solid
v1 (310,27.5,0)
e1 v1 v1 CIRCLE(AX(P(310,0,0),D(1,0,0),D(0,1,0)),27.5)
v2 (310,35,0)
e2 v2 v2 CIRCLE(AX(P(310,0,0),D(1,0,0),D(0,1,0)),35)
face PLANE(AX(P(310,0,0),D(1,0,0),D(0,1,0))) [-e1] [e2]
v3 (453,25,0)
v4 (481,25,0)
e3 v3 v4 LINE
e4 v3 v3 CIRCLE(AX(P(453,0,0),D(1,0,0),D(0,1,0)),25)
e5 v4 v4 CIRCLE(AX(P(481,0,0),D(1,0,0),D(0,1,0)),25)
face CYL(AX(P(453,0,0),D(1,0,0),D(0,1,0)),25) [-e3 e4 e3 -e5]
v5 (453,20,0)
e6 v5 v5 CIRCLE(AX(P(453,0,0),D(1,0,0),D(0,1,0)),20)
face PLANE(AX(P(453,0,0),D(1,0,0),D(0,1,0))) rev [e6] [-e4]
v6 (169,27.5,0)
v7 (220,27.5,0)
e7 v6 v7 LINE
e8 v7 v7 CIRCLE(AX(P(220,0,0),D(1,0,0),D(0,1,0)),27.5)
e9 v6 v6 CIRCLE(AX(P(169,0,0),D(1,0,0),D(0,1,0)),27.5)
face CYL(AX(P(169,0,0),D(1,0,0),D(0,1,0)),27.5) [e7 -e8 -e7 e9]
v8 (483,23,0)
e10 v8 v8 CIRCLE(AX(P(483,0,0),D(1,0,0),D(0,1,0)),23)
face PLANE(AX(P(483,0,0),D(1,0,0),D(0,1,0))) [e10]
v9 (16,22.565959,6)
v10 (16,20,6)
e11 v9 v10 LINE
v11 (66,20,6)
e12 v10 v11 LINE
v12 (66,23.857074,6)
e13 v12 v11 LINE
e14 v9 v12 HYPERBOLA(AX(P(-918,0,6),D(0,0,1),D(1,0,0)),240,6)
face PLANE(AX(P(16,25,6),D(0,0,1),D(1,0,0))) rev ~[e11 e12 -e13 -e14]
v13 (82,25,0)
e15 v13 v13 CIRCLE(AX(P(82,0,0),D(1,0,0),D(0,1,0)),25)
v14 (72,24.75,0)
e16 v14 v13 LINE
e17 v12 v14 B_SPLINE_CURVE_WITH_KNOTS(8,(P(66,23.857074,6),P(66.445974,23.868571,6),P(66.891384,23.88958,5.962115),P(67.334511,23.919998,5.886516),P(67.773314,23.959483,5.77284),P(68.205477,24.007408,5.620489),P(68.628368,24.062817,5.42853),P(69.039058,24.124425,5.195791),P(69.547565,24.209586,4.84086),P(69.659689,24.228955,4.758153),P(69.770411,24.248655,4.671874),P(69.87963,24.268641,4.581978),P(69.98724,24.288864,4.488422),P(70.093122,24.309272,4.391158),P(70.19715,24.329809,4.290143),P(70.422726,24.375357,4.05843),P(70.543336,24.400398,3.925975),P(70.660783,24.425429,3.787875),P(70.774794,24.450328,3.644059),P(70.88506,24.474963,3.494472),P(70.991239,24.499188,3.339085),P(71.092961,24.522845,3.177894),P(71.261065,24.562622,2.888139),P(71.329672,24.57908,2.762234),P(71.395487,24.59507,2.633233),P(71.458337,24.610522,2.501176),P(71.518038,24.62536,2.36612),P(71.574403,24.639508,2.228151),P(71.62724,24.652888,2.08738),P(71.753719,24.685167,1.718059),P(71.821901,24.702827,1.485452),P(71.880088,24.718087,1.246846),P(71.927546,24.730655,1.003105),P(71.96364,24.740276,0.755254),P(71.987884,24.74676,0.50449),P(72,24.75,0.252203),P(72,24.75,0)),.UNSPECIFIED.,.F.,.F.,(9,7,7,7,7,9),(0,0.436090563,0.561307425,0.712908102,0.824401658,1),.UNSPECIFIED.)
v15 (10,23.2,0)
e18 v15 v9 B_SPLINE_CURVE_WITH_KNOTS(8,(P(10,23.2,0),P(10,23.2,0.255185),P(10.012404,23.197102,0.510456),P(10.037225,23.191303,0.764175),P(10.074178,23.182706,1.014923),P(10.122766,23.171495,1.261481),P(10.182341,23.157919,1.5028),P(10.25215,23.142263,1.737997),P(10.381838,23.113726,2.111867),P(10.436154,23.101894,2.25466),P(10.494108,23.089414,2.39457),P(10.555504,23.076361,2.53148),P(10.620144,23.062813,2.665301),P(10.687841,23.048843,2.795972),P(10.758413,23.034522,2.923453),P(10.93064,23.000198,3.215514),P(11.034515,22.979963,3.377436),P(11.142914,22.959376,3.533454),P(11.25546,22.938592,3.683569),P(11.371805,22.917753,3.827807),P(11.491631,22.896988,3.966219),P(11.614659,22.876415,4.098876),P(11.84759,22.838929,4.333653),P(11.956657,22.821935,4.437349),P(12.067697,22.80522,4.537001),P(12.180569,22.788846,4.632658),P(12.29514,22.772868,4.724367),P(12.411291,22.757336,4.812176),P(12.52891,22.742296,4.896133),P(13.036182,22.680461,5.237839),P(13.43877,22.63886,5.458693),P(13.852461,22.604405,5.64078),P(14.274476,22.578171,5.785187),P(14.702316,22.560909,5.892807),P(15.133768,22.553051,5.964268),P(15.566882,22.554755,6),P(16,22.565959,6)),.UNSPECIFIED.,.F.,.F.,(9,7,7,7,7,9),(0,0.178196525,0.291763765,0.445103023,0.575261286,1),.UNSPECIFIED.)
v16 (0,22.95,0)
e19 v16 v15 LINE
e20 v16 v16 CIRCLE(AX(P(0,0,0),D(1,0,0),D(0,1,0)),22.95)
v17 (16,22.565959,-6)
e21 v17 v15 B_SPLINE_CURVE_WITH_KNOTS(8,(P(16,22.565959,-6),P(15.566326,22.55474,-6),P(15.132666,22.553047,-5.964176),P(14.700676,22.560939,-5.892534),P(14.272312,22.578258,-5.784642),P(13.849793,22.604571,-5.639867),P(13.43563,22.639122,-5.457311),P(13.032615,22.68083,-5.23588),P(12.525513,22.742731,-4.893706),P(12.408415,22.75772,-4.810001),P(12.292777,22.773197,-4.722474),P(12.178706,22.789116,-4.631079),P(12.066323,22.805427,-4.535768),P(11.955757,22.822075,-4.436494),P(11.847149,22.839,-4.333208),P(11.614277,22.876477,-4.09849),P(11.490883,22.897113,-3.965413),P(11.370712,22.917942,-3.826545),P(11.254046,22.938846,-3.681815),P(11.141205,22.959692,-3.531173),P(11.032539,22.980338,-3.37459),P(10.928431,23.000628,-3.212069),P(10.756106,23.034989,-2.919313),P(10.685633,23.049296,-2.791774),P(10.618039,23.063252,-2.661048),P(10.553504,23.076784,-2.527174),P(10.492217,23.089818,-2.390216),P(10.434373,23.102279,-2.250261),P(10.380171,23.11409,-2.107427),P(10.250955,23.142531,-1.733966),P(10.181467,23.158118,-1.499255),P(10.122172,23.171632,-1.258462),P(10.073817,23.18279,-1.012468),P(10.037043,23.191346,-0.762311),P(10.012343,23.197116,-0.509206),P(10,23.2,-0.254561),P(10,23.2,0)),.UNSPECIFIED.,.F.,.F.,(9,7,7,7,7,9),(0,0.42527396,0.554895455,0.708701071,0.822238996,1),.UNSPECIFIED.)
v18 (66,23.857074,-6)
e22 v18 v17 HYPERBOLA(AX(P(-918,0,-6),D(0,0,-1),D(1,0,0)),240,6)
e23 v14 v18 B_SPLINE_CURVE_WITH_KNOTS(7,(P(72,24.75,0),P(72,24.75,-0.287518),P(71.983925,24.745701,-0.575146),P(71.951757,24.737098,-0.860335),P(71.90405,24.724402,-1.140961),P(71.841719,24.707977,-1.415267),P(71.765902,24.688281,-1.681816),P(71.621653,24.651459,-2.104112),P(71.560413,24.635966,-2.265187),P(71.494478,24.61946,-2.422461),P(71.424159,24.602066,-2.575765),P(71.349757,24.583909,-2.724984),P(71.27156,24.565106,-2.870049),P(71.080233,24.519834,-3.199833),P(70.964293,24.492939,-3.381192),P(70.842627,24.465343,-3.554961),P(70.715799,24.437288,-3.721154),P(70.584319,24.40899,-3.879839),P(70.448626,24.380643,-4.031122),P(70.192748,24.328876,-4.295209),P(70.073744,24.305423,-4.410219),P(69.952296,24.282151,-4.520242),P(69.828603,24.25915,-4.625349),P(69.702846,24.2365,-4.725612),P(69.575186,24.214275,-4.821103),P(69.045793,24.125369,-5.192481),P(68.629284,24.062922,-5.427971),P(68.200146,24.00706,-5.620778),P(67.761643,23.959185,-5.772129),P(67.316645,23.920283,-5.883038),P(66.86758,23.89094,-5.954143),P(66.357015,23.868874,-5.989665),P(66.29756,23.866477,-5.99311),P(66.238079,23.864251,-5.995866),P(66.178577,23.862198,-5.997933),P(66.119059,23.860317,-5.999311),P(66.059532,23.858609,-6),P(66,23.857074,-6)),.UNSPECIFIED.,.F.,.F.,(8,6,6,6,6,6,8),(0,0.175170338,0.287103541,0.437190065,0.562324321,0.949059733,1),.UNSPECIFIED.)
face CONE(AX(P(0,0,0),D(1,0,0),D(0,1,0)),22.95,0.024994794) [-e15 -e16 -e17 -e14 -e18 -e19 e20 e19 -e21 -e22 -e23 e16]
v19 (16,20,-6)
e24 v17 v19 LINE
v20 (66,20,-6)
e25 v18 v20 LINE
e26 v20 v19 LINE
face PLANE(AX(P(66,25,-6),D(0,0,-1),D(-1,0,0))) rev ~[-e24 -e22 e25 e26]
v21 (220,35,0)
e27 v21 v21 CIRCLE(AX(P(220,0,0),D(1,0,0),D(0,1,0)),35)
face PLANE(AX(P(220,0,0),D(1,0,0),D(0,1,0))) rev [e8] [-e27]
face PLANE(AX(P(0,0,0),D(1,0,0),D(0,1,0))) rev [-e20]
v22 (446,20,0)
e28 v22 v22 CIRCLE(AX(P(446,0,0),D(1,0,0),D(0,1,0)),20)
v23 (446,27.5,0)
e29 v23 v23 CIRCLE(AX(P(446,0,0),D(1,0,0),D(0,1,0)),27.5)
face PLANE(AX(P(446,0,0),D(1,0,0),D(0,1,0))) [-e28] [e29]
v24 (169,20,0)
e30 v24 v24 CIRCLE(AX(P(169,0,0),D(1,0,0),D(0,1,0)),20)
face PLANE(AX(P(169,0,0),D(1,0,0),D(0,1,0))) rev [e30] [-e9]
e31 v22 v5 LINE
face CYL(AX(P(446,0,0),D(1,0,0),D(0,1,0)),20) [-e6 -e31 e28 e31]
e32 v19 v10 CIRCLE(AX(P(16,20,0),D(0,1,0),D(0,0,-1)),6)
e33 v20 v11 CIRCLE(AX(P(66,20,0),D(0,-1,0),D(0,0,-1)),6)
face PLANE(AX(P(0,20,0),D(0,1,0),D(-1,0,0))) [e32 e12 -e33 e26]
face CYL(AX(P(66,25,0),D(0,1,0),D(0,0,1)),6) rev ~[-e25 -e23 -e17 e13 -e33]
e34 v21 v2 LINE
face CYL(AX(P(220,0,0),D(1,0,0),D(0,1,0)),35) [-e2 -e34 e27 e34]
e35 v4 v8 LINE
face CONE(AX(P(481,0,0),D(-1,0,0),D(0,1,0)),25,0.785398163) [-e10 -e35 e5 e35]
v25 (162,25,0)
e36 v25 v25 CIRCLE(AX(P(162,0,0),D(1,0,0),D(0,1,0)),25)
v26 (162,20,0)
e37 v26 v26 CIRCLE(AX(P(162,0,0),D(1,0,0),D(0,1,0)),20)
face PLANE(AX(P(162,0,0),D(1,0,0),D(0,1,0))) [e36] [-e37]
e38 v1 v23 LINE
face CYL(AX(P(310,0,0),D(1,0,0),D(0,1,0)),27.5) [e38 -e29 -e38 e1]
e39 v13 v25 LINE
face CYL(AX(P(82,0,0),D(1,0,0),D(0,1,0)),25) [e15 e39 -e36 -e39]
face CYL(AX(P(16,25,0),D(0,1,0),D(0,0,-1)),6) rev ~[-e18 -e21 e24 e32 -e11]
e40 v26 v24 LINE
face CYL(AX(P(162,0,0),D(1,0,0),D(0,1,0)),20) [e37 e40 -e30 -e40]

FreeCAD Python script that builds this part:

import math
import FreeCAD as App
import Part
import Sketcher
Q = App.Units.Quantity


def edges_at(feature, points):
    """Names of the edges that pass closest to the given points."""
    edges = feature.Shape.Edges
    near = lambda p: min(range(len(edges)), key=lambda i: edges[i].distToShape(Part.Vertex(*p))[0])
    return sorted({f"Edge{near(p) + 1}" for p in points})


def add_polygon(sketch, points):
    """Adds a closed chain of lines whose ends are joined by coincident constraints."""
    first, n = sketch.GeometryCount, len(points)
    for a, b in zip(points, points[1:] + points[:1]):
        sketch.addGeometry(Part.LineSegment(App.Vector(*a, 0), App.Vector(*b, 0)), False)
    for i in range(n):
        sketch.addConstraint(Sketcher.Constraint("Coincident", first + i, 2, first + (i + 1) % n, 1))

doc = App.newDocument("Part")
body = doc.addObject("PartDesign::Body", "Body")

sketch1 = body.newObject("Sketcher::SketchObject", "Sketch")
sketch1.AttachmentSupport = (doc.getObject("XY_Plane"), [""])
sketch1.MapMode = "FlatFace"
add_polygon(sketch1, [(0, 22.95), (0, 0), (483, 0), (483, 25), (453, 25), (453, 20), (446, 20), (446, 27.5), (310, 27.5), (310, 35), (220, 35), (220, 27.5), (169, 27.5), (169, 20), (162, 20), (162, 25), (82, 25)])
sketch1.addConstraint(Sketcher.Constraint("Vertical", 0))
sketch1.addConstraint(Sketcher.Constraint("Horizontal", 1))
sketch1.addConstraint(Sketcher.Constraint("Vertical", 2))
sketch1.addConstraint(Sketcher.Constraint("Horizontal", 3))
sketch1.addConstraint(Sketcher.Constraint("Vertical", 4))
sketch1.addConstraint(Sketcher.Constraint("Horizontal", 5))
sketch1.addConstraint(Sketcher.Constraint("Vertical", 6))
sketch1.addConstraint(Sketcher.Constraint("Horizontal", 7))
sketch1.addConstraint(Sketcher.Constraint("Vertical", 8))
sketch1.addConstraint(Sketcher.Constraint("Horizontal", 9))
sketch1.addConstraint(Sketcher.Constraint("Vertical", 10))
sketch1.addConstraint(Sketcher.Constraint("Horizontal", 11))
sketch1.addConstraint(Sketcher.Constraint("Vertical", 12))
sketch1.addConstraint(Sketcher.Constraint("Horizontal", 13))
sketch1.addConstraint(Sketcher.Constraint("Vertical", 14))
sketch1.addConstraint(Sketcher.Constraint("Horizontal", 15))
sketch1.addConstraint(Sketcher.Constraint("Coincident", 0, 2, -1, 1))
sketch1.addConstraint(Sketcher.Constraint("Horizontal", 7, 2, 10, 2))
sketch1.addConstraint(Sketcher.Constraint("Horizontal", 5, 2, 12, 2))
sketch1.addConstraint(Sketcher.Constraint("Horizontal", 3, 2, 14, 2))
sketch1.addConstraint(Sketcher.Constraint("Equal", 5, 13))
sketch1.addConstraint(Sketcher.Constraint("Equal", 6, 8))
sketch1.addConstraint(Sketcher.Constraint("DistanceX", 1, 1, 1, 2, Q("483 mm")))
sketch1.addConstraint(Sketcher.Constraint("DistanceX", 3, 2, 3, 1, Q("30 mm")))
sketch1.addConstraint(Sketcher.Constraint("DistanceX", 5, 2, 5, 1, Q("7 mm")))
sketch1.addConstraint(Sketcher.Constraint("DistanceX", 7, 2, 7, 1, Q("136 mm")))
sketch1.addConstraint(Sketcher.Constraint("DistanceX", 9, 2, 9, 1, Q("90 mm")))
sketch1.addConstraint(Sketcher.Constraint("DistanceX", 11, 2, 11, 1, Q("51 mm")))
sketch1.addConstraint(Sketcher.Constraint("DistanceX", 15, 2, 15, 1, Q("80 mm")))
sketch1.addConstraint(Sketcher.Constraint("DistanceY", 2, 1, 2, 2, Q("25 mm")))
sketch1.addConstraint(Sketcher.Constraint("DistanceY", 4, 2, 4, 1, Q("5 mm")))
sketch1.addConstraint(Sketcher.Constraint("DistanceY", 6, 1, 6, 2, Q("7.5 mm")))
sketch1.addConstraint(Sketcher.Constraint("DistanceY", 0, 2, 0, 1, Q("22.95 mm")))
revolution = body.newObject("PartDesign::Revolution", "Revolution")
revolution.Profile = sketch1
revolution.ReferenceAxis = (sketch1, ["H_Axis"])
revolution.Angle = 360
doc.recompute()

chamfer = body.newObject("PartDesign::Chamfer", "Chamfer")
chamfer.Base = (revolution, edges_at(revolution, [(483, -25, 0)]))
chamfer.Size = 2

sketch2 = body.newObject("Sketcher::SketchObject", "Sketch001")
sketch2.AttachmentSupport = (doc.getObject("XZ_Plane"), [""])
sketch2.MapMode = "FlatFace"
sketch2.AttachmentOffset = App.Placement(App.Vector(0, 0, -25), App.Rotation())
sketch2.addGeometry(Part.LineSegment(App.Vector(16, 6, 0), App.Vector(66, 6, 0)), False)
sketch2.addGeometry(Part.ArcOfCircle(Part.Circle(App.Vector(66, 0, 0), App.Vector(0, 0, 1), 6), math.radians(-90), math.radians(90)), False)
sketch2.addGeometry(Part.LineSegment(App.Vector(66, -6, 0), App.Vector(16, -6, 0)), False)
sketch2.addGeometry(Part.ArcOfCircle(Part.Circle(App.Vector(16, 0, 0), App.Vector(0, 0, 1), 6), math.radians(90), math.radians(270)), False)
sketch2.addConstraint(Sketcher.Constraint("Tangent", 0, 2, 1, 2))
sketch2.addConstraint(Sketcher.Constraint("Tangent", 1, 1, 2, 1))
sketch2.addConstraint(Sketcher.Constraint("Tangent", 2, 2, 3, 2))
sketch2.addConstraint(Sketcher.Constraint("Tangent", 3, 1, 0, 1))
sketch2.addConstraint(Sketcher.Constraint("Horizontal", 0))
sketch2.addConstraint(Sketcher.Constraint("Horizontal", 2))
sketch2.addConstraint(Sketcher.Constraint("PointOnObject", 1, 3, -1))
sketch2.addConstraint(Sketcher.Constraint("Radius", 1, Q("6 mm")))
sketch2.addConstraint(Sketcher.Constraint("DistanceX", 0, 1, 0, 2, Q("50 mm")))
sketch2.addConstraint(Sketcher.Constraint("DistanceX", -1, 1, 1, 3, Q("66 mm")))
pocket1 = body.newObject("PartDesign::Pocket", "Pocket")
pocket1.Profile = sketch2
pocket1.Length = 5
pocket1.Reversed = True

doc.recompute()
